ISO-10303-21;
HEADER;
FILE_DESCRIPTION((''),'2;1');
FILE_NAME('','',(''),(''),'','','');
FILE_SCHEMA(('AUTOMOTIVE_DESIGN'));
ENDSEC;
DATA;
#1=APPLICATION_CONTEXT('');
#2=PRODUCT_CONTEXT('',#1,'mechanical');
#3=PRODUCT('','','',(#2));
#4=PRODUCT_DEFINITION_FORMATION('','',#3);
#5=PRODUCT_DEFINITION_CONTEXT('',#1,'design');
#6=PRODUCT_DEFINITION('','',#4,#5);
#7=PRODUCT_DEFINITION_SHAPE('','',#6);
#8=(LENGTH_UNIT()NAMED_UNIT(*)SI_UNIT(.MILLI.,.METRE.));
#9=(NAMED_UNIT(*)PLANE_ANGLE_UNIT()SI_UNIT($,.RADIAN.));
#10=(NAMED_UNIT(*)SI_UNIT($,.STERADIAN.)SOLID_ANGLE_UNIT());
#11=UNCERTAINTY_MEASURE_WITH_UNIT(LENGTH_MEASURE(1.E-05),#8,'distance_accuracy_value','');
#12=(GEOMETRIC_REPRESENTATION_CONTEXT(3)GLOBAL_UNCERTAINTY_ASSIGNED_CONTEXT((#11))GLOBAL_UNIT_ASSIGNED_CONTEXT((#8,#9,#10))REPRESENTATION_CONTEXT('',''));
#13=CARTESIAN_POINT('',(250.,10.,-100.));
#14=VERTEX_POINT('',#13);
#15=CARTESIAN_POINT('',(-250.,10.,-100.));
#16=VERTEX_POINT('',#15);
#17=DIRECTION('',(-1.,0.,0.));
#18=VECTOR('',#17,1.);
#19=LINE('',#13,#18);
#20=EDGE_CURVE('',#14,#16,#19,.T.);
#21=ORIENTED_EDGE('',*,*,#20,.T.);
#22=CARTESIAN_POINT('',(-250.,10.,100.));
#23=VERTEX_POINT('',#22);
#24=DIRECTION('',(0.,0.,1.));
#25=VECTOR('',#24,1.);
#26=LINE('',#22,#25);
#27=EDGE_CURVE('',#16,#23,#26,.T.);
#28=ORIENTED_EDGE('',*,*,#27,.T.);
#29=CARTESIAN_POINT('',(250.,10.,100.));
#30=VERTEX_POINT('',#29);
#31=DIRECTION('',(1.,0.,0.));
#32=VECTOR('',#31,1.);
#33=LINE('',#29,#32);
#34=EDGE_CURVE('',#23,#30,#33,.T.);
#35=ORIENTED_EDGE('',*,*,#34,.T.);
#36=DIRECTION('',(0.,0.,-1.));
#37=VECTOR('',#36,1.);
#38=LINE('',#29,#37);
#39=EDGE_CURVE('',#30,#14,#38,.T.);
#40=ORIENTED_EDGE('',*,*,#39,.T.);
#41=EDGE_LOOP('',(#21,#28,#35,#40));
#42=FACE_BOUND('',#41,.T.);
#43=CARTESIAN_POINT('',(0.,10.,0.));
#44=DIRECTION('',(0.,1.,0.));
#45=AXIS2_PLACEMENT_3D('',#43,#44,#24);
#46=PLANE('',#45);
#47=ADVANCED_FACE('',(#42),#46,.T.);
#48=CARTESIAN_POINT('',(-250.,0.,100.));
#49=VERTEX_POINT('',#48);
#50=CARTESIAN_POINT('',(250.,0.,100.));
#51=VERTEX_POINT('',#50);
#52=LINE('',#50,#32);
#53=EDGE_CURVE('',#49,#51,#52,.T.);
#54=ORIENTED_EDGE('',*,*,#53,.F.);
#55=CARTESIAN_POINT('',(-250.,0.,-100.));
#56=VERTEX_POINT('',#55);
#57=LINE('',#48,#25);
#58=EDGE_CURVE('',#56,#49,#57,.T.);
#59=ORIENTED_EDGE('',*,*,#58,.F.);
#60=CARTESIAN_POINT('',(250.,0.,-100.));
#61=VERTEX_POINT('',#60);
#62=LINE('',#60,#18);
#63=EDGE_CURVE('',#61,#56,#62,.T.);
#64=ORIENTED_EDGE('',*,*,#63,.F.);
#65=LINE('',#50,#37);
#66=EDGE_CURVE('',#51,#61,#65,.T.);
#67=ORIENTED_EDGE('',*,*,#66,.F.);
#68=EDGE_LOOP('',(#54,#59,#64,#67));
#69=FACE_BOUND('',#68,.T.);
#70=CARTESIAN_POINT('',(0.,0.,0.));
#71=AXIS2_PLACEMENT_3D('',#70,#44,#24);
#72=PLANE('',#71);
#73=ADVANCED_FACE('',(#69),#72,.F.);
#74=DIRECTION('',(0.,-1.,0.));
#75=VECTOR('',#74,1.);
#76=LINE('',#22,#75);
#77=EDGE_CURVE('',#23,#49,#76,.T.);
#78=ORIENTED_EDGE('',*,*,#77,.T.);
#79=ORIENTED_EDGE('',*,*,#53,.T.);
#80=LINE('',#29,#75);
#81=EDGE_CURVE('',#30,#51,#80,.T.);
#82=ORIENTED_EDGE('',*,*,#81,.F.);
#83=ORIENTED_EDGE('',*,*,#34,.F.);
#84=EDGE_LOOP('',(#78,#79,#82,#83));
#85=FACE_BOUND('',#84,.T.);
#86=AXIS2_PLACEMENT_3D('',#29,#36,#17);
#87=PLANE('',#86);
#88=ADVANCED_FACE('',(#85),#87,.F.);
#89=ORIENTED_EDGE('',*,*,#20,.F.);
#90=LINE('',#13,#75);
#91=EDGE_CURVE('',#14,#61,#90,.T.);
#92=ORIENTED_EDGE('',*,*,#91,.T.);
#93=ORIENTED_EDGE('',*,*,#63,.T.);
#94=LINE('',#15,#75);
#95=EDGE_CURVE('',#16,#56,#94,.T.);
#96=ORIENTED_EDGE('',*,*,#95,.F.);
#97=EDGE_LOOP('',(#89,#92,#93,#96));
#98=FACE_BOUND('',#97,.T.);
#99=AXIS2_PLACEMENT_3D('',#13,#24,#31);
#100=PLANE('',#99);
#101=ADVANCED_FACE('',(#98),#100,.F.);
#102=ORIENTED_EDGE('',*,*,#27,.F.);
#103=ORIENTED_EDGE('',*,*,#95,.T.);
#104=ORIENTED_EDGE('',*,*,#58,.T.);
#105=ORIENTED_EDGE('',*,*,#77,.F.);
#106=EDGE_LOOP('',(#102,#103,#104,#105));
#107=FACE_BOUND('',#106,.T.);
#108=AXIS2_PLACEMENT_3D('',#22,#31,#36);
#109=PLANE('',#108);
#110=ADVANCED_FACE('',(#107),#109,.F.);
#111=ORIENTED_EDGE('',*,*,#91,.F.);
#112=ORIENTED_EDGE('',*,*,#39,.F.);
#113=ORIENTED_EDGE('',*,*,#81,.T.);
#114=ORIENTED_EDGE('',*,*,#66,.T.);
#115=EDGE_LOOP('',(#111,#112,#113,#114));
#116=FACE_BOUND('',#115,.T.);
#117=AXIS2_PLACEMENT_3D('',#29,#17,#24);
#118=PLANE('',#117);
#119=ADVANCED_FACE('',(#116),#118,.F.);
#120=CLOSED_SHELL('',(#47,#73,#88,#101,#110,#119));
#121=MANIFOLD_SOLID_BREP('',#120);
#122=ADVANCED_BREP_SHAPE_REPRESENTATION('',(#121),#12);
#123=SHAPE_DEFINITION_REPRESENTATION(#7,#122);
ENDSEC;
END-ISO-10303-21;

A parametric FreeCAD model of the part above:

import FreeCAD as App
import Part
import Sketcher

V = App.Vector


def add_polygon(sketch, points):
    """Adds a closed chain of lines whose ends are joined by coincident constraints."""
    first, n = sketch.GeometryCount, len(points)
    for a, b in zip(points, points[1:] + points[:1]):
        sketch.addGeometry(Part.LineSegment(App.Vector(*a, 0), App.Vector(*b, 0)), False)
    for i in range(n):
        sketch.addConstraint(Sketcher.Constraint("Coincident", first + i, 2, first + (i + 1) % n, 1))

doc = App.newDocument("Part")
body = doc.addObject("PartDesign::Body", "Body")

# Sketch on XZ plane
sketch1 = doc.addObject("Sketcher::SketchObject", "Sketch")
body.addObject(sketch1)
sketch1.AttachmentSupport = (doc.XZ_Plane, [""])
sketch1.MapMode = "FlatFace"
add_polygon(sketch1, [(-250, -100), (-250, 100), (250, 100), (250, -100)])  # lines 0-3
sketch1.addConstraint(Sketcher.Constraint("Vertical", 0))
sketch1.addConstraint(Sketcher.Constraint("Horizontal", 1))
sketch1.addConstraint(Sketcher.Constraint("Vertical", 2))
sketch1.addConstraint(Sketcher.Constraint("Horizontal", 3))
sketch1.addConstraint(Sketcher.Constraint("Symmetric", 0, 2, 2, 2, -1, 1))
sketch1.addConstraint(Sketcher.Constraint("DistanceX", 1, 1, 1, 2, 500.0))
sketch1.addConstraint(Sketcher.Constraint("DistanceY", 0, 1, 0, 2, 200.0))
pad1 = doc.addObject("PartDesign::Pad", "Pad")
body.addObject(pad1)
pad1.Profile = sketch1
pad1.Length = 10
pad1.Reversed = True

doc.recompute()
